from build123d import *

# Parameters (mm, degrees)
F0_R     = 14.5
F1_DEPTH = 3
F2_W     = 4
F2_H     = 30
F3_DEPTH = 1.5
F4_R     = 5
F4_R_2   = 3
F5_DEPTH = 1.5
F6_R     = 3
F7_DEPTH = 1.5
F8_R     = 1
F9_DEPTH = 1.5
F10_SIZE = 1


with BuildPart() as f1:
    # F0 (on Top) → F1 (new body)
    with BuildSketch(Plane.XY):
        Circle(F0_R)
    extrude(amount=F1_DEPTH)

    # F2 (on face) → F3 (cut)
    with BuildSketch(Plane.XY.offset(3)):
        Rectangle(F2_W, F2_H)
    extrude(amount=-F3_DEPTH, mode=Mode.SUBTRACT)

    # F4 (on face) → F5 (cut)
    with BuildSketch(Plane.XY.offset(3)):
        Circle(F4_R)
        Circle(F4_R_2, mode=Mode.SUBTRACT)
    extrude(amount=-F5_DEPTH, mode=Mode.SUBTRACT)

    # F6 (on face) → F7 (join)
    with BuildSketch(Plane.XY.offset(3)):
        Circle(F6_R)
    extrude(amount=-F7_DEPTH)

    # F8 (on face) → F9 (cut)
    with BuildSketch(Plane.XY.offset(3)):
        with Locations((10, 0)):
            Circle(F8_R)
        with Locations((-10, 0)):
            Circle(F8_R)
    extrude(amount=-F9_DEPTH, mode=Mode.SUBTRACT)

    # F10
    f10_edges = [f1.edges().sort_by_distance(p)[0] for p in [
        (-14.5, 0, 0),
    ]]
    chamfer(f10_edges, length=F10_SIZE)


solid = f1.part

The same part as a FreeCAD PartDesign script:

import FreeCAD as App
import Part
import Sketcher
from FreeCAD import Vector
Q = App.Units.Quantity


def edges_at(feature, points):
    """Names of the edges that pass closest to the given points."""
    edges = feature.Shape.Edges
    near = lambda p: min(range(len(edges)), key=lambda i: edges[i].distToShape(Part.Vertex(*p))[0])
    return sorted({f"Edge{near(p) + 1}" for p in points})


def add_polygon(sketch, points):
    """Adds a closed chain of lines whose ends are joined by coincident constraints."""
    first, n = sketch.GeometryCount, len(points)
    for a, b in zip(points, points[1:] + points[:1]):
        sketch.addGeometry(Part.LineSegment(App.Vector(*a, 0), App.Vector(*b, 0)), False)
    for i in range(n):
        sketch.addConstraint(Sketcher.Constraint("Coincident", first + i, 2, first + (i + 1) % n, 1))

doc = App.newDocument("Part")
params = doc.addObject("Spreadsheet::Sheet", "Params")
for row, (alias, value) in enumerate([
    ("sketch1_diameter", "29 mm"),
    ("pad1_length", "3 mm"),
    ("sketch2_width", "4 mm"),
    ("sketch2_height", "30 mm"),
    ("pocket1_length", "1.5 mm"),
    ("sketch3_diameter", "10 mm"),
    ("sketch3_diameter2", "6 mm"),
    ("pocket2_length", "1.5 mm"),
    ("sketch4_diameter", "6 mm"),
    ("pad2_length", "1.5 mm"),
    ("sketch5_diameter", "2 mm"),
    ("pocket3_length", "1.5 mm"),
    ("chamfer_size", "1 mm"),
], start=1):
    params.set(f"A{row}", alias)
    params.set(f"B{row}", "=" + value)
    params.setAlias(f"B{row}", alias)

body = doc.addObject("PartDesign::Body", "Body")

# Sketch on XY plane
sketch1 = body.newObject("Sketcher::SketchObject", "Sketch")
sketch1.AttachmentSupport = (doc.getObject("XY_Plane"), [""])
sketch1.MapMode = "FlatFace"
sketch1.addGeometry(Part.Circle(Vector(0, 0, 0), Vector(0, 0, 1), 14.5), False)
sketch1.addConstraint([
    Sketcher.Constraint("Coincident", 0, 3, -1, 1),
    Sketcher.Constraint("Diameter", 0, Q("29 mm")),
])
sketch1.setExpression("Constraints[1]", "Params.sketch1_diameter")
pad1 = body.newObject("PartDesign::Pad", "Pad")
pad1.Profile = sketch1
pad1.setExpression("Length", "Params.pad1_length")

# Sketch on XY plane
sketch2 = body.newObject("Sketcher::SketchObject", "Sketch001")
sketch2.AttachmentSupport = (doc.getObject("XY_Plane"), [""])
sketch2.MapMode = "FlatFace"
sketch2.AttachmentOffset = App.Placement(Vector(0, 0, 3), App.Rotation())
add_polygon(sketch2, [(-2, 15), (-2, -15), (2, -15), (2, 15)])  # lines 0-3
sketch2.addConstraint([
    Sketcher.Constraint("Vertical", 0),
    Sketcher.Constraint("Horizontal", 1),
    Sketcher.Constraint("Vertical", 2),
    Sketcher.Constraint("Horizontal", 3),
    Sketcher.Constraint("Symmetric", 0, 2, 2, 2, -1, 1),
    Sketcher.Constraint("DistanceX", 1, 1, 1, 2, Q("4 mm")),
    Sketcher.Constraint("DistanceY", 0, 2, 0, 1, Q("30 mm")),
])
sketch2.setExpression("Constraints[9]", "Params.sketch2_width")
sketch2.setExpression("Constraints[10]", "Params.sketch2_height")
pocket1 = body.newObject("PartDesign::Pocket", "Pocket")
pocket1.Profile = sketch2
pocket1.setExpression("Length", "Params.pocket1_length")

# Sketch on XY plane
sketch3 = body.newObject("Sketcher::SketchObject", "Sketch002")
sketch3.AttachmentSupport = (doc.getObject("XY_Plane"), [""])
sketch3.MapMode = "FlatFace"
sketch3.AttachmentOffset = App.Placement(Vector(0, 0, 3), App.Rotation())
sketch3.addGeometry([
    Part.Circle(Vector(0, 0, 0), Vector(0, 0, 1), 5),
    Part.Circle(Vector(0, 0, 0), Vector(0, 0, 1), 3),
], False)
sketch3.addConstraint([
    Sketcher.Constraint("Coincident", 0, 3, -1, 1),
    Sketcher.Constraint("Coincident", 1, 3, -1, 1),
    Sketcher.Constraint("Diameter", 0, Q("10 mm")),
    Sketcher.Constraint("Diameter", 1, Q("6 mm")),
])
sketch3.setExpression("Constraints[2]", "Params.sketch3_diameter")
sketch3.setExpression("Constraints[3]", "Params.sketch3_diameter2")
pocket2 = body.newObject("PartDesign::Pocket", "Pocket001")
pocket2.Profile = sketch3
pocket2.setExpression("Length", "Params.pocket2_length")

# Sketch on XY plane
sketch4 = body.newObject("Sketcher::SketchObject", "Sketch003")
sketch4.AttachmentSupport = (doc.getObject("XY_Plane"), [""])
sketch4.MapMode = "FlatFace"
sketch4.AttachmentOffset = App.Placement(Vector(0, 0, 3), App.Rotation())
sketch4.addGeometry(Part.Circle(Vector(0, 0, 0), Vector(0, 0, 1), 3), False)
sketch4.addConstraint([
    Sketcher.Constraint("Coincident", 0, 3, -1, 1),
    Sketcher.Constraint("Diameter", 0, Q("6 mm")),
])
sketch4.setExpression("Constraints[1]", "Params.sketch4_diameter")
pad2 = body.newObject("PartDesign::Pad", "Pad001")
pad2.Profile = sketch4
pad2.setExpression("Length", "Params.pad2_length")
pad2.Reversed = True

# Sketch on XY plane
sketch5 = body.newObject("Sketcher::SketchObject", "Sketch004")
sketch5.AttachmentSupport = (doc.getObject("XY_Plane"), [""])
sketch5.MapMode = "FlatFace"
sketch5.AttachmentOffset = App.Placement(Vector(0, 0, 3), App.Rotation())
sketch5.addGeometry([
    Part.Circle(Vector(10, 0, 0), Vector(0, 0, 1), 1),
    Part.Circle(Vector(-10, 0, 0), Vector(0, 0, 1), 1),
], False)
sketch5.addConstraint([
    Sketcher.Constraint("Equal", 0, 1),
    Sketcher.Constraint("Symmetric", 0, 3, 1, 3, -1, 1),
    Sketcher.Constraint("PointOnObject", 0, 3, -1),
    Sketcher.Constraint("Diameter", 0, Q("2 mm")),
    Sketcher.Constraint("DistanceX", -1, 1, 0, 3, Q("10 mm")),
])
sketch5.setExpression("Constraints[3]", "Params.sketch5_diameter")
pocket3 = body.newObject("PartDesign::Pocket", "Pocket002")
pocket3.Profile = sketch5
pocket3.setExpression("Length", "Params.pocket3_length")
doc.recompute()

chamfer = body.newObject("PartDesign::Chamfer", "Chamfer")
chamfer.Base = (pocket3, edges_at(pocket3, [(-14.5, 0, 0)]))
chamfer.setExpression("Size", "Params.chamfer_size")

doc.recompute()
